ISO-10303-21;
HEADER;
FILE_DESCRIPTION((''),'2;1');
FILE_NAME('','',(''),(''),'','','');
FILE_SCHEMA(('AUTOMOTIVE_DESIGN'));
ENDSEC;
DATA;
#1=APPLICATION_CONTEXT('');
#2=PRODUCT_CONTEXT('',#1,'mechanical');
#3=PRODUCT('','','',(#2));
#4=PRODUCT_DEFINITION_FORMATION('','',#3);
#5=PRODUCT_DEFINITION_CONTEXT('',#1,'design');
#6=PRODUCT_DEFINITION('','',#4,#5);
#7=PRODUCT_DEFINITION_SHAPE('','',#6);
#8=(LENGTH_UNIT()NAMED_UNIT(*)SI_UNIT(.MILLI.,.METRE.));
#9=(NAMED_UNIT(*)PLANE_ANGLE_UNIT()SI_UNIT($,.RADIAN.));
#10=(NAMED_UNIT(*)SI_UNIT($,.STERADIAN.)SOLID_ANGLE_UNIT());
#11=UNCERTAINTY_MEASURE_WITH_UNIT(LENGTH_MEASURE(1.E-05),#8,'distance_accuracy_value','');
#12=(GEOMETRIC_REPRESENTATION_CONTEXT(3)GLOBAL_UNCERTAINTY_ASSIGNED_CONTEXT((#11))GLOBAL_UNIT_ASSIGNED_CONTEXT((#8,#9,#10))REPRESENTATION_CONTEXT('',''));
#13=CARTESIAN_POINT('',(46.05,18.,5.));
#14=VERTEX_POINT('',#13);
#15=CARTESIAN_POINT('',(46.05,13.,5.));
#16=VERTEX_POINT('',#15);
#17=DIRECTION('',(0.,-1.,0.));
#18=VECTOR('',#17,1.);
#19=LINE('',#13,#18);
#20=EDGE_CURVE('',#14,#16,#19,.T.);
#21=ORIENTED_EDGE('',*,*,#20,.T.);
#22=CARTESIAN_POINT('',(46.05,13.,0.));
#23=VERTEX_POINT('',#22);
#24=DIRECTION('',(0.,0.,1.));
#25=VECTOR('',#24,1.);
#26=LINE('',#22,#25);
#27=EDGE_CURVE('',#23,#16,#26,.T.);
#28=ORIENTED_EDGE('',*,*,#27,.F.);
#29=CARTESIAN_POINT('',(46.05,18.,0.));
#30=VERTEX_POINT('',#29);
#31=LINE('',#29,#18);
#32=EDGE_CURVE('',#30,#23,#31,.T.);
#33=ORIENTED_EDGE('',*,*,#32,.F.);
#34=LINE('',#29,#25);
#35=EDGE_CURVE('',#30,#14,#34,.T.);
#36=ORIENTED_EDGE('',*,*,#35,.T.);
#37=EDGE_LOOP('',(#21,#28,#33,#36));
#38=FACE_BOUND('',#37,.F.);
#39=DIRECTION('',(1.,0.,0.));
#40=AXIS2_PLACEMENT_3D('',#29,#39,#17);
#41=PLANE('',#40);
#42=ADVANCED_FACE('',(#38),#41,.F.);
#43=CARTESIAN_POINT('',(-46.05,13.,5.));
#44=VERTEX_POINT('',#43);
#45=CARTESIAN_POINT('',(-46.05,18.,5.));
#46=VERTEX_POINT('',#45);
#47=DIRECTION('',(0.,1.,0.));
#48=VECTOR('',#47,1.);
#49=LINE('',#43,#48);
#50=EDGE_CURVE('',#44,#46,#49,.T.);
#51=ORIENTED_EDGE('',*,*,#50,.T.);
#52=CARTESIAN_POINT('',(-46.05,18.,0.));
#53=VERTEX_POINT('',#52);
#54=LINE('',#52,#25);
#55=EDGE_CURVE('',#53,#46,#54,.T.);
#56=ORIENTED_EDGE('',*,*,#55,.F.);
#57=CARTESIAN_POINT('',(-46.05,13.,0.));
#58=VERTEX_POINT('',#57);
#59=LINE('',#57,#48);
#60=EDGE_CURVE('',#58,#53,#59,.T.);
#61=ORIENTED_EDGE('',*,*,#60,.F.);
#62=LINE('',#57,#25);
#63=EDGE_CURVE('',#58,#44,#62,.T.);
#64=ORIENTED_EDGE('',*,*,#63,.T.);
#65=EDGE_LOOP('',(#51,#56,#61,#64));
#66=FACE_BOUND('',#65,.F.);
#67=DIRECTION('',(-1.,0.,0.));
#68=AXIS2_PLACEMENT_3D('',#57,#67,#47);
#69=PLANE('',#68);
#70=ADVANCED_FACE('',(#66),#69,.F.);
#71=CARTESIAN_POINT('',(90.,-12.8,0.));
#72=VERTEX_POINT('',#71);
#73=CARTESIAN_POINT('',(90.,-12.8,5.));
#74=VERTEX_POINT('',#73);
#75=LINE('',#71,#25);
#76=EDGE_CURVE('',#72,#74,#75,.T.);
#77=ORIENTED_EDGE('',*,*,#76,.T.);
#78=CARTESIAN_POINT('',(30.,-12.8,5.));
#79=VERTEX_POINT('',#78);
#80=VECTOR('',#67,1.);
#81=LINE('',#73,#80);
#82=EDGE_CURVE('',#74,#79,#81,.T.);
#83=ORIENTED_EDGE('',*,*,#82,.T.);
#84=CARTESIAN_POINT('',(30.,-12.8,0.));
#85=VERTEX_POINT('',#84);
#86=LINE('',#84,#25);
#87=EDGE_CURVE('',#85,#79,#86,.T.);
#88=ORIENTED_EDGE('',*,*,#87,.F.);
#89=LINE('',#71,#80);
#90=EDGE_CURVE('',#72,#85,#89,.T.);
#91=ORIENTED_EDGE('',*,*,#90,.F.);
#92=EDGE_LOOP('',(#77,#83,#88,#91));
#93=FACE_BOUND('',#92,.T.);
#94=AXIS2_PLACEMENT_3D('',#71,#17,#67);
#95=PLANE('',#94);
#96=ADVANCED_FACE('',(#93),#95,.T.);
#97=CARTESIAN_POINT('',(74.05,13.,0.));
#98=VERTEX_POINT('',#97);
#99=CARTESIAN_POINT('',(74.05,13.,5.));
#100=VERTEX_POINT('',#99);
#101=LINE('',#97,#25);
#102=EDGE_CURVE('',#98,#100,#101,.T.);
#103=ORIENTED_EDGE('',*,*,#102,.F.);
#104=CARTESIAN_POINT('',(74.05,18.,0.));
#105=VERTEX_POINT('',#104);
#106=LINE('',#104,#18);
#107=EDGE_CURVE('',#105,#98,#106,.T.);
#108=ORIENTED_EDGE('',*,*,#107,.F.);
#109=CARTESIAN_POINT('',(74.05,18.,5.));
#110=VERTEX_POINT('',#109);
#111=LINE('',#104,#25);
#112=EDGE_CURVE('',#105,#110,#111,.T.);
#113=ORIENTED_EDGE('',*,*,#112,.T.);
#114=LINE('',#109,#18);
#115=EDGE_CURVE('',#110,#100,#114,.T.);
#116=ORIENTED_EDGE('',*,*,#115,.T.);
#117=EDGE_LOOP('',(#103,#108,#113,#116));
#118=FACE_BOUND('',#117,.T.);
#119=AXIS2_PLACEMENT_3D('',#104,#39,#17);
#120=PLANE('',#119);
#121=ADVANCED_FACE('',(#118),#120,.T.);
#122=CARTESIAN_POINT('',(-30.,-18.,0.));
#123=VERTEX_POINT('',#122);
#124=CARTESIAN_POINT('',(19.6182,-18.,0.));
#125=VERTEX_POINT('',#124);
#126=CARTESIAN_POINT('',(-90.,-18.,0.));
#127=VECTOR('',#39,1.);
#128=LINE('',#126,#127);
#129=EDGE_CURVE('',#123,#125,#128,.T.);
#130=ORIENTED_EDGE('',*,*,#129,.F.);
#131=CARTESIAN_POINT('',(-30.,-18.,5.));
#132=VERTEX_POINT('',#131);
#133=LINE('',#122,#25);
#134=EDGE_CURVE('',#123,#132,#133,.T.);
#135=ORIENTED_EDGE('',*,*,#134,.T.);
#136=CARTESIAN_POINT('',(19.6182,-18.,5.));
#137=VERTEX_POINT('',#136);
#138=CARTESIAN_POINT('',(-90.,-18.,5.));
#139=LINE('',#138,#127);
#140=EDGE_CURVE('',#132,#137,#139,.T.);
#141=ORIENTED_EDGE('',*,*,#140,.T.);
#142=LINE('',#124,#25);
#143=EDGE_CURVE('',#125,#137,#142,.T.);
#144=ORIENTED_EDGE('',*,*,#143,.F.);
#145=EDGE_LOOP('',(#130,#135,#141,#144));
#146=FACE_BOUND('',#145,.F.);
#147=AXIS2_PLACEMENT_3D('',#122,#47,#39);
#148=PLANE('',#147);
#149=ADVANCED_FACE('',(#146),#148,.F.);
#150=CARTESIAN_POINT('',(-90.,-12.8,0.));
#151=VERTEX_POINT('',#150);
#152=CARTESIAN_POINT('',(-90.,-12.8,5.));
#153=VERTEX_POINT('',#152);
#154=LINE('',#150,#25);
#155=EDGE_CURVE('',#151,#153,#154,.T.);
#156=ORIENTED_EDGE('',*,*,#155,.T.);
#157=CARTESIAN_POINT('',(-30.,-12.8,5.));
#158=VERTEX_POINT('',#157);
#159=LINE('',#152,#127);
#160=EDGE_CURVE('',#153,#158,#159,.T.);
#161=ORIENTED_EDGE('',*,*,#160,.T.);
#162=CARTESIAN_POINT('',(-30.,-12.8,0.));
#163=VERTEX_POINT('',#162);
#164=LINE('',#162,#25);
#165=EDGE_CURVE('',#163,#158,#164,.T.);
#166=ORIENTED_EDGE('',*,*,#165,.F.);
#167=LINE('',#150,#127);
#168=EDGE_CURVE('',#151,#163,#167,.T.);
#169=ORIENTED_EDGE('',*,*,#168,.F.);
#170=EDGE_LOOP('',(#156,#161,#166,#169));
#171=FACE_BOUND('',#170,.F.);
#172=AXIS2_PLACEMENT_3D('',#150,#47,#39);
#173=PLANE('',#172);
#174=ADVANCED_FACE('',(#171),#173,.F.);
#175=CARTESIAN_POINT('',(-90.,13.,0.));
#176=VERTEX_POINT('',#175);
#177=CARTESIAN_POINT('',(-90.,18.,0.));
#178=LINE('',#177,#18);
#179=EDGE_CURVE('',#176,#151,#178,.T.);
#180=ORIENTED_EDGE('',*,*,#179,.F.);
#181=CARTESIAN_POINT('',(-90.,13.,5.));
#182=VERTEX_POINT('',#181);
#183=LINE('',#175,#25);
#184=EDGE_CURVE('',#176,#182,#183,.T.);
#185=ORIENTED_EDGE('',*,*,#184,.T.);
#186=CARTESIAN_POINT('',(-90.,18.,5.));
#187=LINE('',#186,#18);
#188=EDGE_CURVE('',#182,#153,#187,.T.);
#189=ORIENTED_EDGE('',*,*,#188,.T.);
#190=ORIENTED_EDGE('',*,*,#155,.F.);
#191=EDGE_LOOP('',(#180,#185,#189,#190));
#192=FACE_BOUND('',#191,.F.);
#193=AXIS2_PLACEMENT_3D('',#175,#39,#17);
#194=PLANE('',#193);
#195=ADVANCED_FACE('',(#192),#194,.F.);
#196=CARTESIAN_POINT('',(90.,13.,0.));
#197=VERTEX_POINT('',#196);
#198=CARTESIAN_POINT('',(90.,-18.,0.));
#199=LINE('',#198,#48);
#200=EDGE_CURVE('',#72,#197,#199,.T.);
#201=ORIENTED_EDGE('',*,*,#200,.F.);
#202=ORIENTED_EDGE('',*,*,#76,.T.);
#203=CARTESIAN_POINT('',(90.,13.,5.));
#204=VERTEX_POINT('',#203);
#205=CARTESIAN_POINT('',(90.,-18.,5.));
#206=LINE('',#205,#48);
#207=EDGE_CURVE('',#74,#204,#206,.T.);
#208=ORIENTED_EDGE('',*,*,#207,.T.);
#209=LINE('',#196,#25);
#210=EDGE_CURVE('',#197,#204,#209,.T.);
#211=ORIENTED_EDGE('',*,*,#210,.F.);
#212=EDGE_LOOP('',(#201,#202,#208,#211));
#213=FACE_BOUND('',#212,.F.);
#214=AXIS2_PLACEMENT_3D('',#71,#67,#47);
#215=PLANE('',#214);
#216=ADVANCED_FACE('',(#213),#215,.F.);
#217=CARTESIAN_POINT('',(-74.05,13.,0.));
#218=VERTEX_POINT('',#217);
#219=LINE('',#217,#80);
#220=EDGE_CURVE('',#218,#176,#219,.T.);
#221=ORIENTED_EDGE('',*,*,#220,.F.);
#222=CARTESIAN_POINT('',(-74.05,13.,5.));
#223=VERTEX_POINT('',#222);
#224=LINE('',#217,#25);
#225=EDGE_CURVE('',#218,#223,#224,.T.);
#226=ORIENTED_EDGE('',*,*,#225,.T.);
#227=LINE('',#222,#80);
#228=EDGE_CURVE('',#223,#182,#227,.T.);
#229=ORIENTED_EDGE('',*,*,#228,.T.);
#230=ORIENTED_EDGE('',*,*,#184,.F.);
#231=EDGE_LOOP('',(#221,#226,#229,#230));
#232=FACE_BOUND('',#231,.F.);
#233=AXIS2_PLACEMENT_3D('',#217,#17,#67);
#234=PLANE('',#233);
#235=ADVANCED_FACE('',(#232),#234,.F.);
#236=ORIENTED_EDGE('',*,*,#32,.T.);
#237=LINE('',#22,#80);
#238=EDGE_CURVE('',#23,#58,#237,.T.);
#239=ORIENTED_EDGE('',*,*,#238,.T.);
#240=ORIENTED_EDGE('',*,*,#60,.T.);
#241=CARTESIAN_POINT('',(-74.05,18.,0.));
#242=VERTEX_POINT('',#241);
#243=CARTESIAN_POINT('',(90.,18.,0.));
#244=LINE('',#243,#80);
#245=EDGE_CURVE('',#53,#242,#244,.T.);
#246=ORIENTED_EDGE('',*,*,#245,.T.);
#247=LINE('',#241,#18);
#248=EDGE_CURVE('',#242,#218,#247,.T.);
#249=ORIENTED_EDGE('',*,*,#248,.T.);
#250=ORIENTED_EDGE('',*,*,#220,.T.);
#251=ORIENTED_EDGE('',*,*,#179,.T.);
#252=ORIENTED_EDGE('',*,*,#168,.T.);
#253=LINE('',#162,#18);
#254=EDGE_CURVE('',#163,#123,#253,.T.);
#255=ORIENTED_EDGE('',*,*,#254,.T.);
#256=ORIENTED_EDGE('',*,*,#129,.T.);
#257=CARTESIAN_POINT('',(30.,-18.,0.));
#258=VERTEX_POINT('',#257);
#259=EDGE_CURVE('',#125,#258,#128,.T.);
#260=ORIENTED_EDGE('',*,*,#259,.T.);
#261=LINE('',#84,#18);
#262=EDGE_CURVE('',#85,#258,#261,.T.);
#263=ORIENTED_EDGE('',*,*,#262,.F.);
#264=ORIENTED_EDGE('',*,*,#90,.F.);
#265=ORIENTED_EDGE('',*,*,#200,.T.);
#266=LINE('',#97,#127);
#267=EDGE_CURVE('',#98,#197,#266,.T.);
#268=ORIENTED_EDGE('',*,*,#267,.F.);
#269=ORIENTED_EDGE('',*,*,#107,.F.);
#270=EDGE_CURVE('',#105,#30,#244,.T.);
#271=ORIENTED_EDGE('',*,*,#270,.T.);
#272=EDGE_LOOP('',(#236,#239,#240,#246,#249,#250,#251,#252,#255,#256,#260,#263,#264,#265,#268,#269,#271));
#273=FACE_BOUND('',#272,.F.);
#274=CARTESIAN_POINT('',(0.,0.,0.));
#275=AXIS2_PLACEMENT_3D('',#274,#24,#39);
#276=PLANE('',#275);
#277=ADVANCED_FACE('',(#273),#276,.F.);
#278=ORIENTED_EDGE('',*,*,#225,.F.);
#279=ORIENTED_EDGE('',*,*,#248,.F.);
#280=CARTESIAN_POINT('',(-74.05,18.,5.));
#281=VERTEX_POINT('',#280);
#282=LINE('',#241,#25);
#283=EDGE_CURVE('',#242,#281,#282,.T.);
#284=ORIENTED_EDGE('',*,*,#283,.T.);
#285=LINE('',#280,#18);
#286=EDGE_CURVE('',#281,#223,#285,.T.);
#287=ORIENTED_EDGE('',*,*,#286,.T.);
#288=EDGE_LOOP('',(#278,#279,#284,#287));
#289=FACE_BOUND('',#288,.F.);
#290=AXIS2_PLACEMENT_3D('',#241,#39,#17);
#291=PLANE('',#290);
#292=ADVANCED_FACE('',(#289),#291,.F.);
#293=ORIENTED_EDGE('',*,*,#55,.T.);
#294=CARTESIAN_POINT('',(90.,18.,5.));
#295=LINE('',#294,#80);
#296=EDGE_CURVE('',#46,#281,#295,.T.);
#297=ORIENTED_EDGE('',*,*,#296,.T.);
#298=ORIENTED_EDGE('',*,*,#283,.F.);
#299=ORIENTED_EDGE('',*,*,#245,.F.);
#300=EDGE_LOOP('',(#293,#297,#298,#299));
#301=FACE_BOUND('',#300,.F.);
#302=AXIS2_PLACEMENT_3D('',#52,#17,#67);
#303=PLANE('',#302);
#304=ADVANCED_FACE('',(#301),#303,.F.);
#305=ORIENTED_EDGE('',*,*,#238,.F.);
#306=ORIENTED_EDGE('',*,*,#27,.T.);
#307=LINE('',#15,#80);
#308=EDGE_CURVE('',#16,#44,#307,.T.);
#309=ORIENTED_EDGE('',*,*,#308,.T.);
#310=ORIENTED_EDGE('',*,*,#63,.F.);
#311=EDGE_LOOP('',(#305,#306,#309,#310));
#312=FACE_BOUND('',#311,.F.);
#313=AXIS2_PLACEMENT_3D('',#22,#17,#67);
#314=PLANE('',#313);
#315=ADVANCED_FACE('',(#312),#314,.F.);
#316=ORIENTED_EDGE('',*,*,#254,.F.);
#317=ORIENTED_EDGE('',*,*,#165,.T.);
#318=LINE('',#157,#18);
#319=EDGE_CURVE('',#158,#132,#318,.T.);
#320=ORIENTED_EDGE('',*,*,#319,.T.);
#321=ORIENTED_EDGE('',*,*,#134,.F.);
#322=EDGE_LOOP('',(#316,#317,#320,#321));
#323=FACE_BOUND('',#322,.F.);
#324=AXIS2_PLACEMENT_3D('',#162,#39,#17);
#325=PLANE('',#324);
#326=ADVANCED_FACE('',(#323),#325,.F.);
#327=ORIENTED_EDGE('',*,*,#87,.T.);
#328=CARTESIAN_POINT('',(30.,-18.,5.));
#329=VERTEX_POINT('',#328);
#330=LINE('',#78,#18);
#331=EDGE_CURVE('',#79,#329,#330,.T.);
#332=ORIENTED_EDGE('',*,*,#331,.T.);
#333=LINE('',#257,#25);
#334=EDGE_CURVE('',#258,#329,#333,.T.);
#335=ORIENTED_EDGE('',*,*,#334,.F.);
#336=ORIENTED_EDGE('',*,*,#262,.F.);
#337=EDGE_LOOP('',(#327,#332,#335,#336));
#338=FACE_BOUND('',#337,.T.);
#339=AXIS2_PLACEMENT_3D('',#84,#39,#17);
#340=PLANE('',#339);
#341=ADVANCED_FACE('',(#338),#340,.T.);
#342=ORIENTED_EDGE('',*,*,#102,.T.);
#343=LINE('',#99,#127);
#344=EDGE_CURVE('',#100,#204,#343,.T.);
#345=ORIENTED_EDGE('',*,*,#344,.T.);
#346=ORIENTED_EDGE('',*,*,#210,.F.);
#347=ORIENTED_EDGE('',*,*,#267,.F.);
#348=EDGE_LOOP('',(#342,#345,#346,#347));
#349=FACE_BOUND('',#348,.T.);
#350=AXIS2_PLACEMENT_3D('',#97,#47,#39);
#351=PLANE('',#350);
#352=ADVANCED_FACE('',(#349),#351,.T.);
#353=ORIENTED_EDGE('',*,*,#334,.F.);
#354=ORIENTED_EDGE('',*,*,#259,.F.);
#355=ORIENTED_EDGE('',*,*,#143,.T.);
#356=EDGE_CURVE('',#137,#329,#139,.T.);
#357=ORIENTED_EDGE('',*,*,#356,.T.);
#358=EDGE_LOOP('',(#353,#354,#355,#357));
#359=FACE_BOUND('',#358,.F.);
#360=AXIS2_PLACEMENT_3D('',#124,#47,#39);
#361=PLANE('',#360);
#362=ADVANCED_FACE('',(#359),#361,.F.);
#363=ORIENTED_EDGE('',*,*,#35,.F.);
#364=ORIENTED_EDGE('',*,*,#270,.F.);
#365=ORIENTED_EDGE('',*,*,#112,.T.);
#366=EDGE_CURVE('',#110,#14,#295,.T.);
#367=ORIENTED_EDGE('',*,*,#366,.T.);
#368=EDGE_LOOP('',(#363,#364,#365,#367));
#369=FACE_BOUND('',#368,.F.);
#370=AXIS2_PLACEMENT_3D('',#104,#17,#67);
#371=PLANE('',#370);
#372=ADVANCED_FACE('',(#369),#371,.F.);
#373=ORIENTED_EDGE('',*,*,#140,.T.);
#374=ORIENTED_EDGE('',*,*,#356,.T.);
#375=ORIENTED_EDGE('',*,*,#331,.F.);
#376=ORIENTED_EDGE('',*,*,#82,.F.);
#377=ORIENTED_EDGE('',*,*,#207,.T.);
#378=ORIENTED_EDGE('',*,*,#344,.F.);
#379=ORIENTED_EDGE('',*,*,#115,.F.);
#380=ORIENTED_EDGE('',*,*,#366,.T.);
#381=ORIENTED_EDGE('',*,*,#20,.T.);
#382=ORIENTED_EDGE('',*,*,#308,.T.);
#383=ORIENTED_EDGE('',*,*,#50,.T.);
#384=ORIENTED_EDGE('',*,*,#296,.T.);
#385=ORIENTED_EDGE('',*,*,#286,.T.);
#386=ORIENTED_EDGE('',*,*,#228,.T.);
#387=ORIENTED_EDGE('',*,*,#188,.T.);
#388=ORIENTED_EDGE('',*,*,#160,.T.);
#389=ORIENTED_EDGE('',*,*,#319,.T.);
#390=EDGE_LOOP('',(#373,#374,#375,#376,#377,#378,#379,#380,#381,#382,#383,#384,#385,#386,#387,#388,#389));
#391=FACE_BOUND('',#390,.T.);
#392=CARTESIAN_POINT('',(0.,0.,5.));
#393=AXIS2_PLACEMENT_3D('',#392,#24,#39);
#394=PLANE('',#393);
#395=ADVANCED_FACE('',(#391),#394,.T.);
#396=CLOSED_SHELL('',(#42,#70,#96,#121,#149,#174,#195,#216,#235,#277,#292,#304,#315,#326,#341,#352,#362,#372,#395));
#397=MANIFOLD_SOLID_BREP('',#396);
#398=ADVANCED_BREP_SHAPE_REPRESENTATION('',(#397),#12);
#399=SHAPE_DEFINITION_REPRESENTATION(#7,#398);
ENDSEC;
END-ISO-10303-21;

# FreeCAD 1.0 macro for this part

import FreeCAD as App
import Part
import Sketcher
Q = App.Units.Quantity

doc = App.newDocument("Part")
body = doc.addObject("PartDesign::Body", "Body")

sketch1 = doc.addObject("Sketcher::SketchObject", "Sketch")
body.addObject(sketch1)
sketch1.AttachmentSupport = (doc.XY_Plane, [""])
sketch1.MapMode = "FlatFace"
sketch1.addGeometry([
    Part.LineSegment(App.Vector(-30, -12.8, 0), App.Vector(-30, -18, 0)),
    Part.LineSegment(App.Vector(-30, -18, 0), App.Vector(30, -18, 0)),
    Part.LineSegment(App.Vector(30, -18, 0), App.Vector(30, -12.8, 0)),
    Part.LineSegment(App.Vector(30, -12.8, 0), App.Vector(90, -12.8, 0)),
    Part.LineSegment(App.Vector(90, -12.8, 0), App.Vector(90, 13, 0)),
    Part.LineSegment(App.Vector(90, 13, 0), App.Vector(74.05, 13, 0)),
    Part.LineSegment(App.Vector(74.05, 13, 0), App.Vector(74.05, 18, 0)),
    Part.LineSegment(App.Vector(74.05, 18, 0), App.Vector(46.05, 18, 0)),
    Part.LineSegment(App.Vector(46.05, 18, 0), App.Vector(46.05, 13, 0)),
    Part.LineSegment(App.Vector(46.05, 13, 0), App.Vector(-46.05, 13, 0)),
    Part.LineSegment(App.Vector(-46.05, 13, 0), App.Vector(-46.05, 18, 0)),
    Part.LineSegment(App.Vector(-46.05, 18, 0), App.Vector(-74.05, 18, 0)),
    Part.LineSegment(App.Vector(-74.05, 18, 0), App.Vector(-74.05, 13, 0)),
    Part.LineSegment(App.Vector(-74.05, 13, 0), App.Vector(-90, 13, 0)),
    Part.LineSegment(App.Vector(-90, 13, 0), App.Vector(-90, -12.8, 0)),
    Part.LineSegment(App.Vector(-90, -12.8, 0), App.Vector(-30, -12.8, 0)),
], False)
sketch1.addConstraint([
    Sketcher.Constraint("Coincident", 0, 2, 1, 1),
    Sketcher.Constraint("Coincident", 1, 2, 2, 1),
    Sketcher.Constraint("Coincident", 2, 2, 3, 1),
    Sketcher.Constraint("Coincident", 3, 2, 4, 1),
    Sketcher.Constraint("Coincident", 4, 2, 5, 1),
    Sketcher.Constraint("Coincident", 5, 2, 6, 1),
    Sketcher.Constraint("Coincident", 6, 2, 7, 1),
    Sketcher.Constraint("Coincident", 7, 2, 8, 1),
    Sketcher.Constraint("Coincident", 8, 2, 9, 1),
    Sketcher.Constraint("Coincident", 9, 2, 10, 1),
    Sketcher.Constraint("Coincident", 10, 2, 11, 1),
    Sketcher.Constraint("Coincident", 11, 2, 12, 1),
    Sketcher.Constraint("Coincident", 12, 2, 13, 1),
    Sketcher.Constraint("Coincident", 13, 2, 14, 1),
    Sketcher.Constraint("Coincident", 14, 2, 15, 1),
    Sketcher.Constraint("Coincident", 15, 2, 0, 1),
    Sketcher.Constraint("Vertical", 0),
    Sketcher.Constraint("Horizontal", 1),
    Sketcher.Constraint("Vertical", 2),
    Sketcher.Constraint("Horizontal", 3),
    Sketcher.Constraint("Vertical", 4),
    Sketcher.Constraint("Horizontal", 5),
    Sketcher.Constraint("Vertical", 6),
    Sketcher.Constraint("Horizontal", 7),
    Sketcher.Constraint("Vertical", 8),
    Sketcher.Constraint("Horizontal", 9),
    Sketcher.Constraint("Vertical", 10),
    Sketcher.Constraint("Horizontal", 11),
    Sketcher.Constraint("Vertical", 12),
    Sketcher.Constraint("Horizontal", 13),
    Sketcher.Constraint("Vertical", 14),
    Sketcher.Constraint("Horizontal", 15),
    Sketcher.Constraint("Symmetric", 7, 2, 10, 2, -2),
    Sketcher.Constraint("Symmetric", 5, 2, 12, 2, -2),
    Sketcher.Constraint("Symmetric", 3, 2, 14, 2, -2),
    Sketcher.Constraint("Horizontal", 5, 2, 8, 2),
    Sketcher.Constraint("Equal", 1, 3),
    Sketcher.Constraint("Equal", 3, 15),
    Sketcher.Constraint("DistanceX", 1, 1, 1, 2, Q("60 mm")),
    Sketcher.Constraint("DistanceX", 7, 2, 7, 1, Q("28 mm")),
    Sketcher.Constraint("DistanceY", 6, 1, 6, 2, Q("5 mm")),
    Sketcher.Constraint("DistanceX", 9, 2, 9, 1, Q("92.1 mm")),
    Sketcher.Constraint("DistanceY", 0, 2, 0, 1, Q("5.2 mm")),
    Sketcher.Constraint("DistanceY", 1, 2, 6, 2, Q("36 mm")),
    Sketcher.Constraint("DistanceY", 0, 2, -1, 1, Q("18 mm")),
])
pad1 = doc.addObject("PartDesign::Pad", "Pad")
body.addObject(pad1)
pad1.Profile = sketch1
pad1.Length = 5

doc.recompute()
